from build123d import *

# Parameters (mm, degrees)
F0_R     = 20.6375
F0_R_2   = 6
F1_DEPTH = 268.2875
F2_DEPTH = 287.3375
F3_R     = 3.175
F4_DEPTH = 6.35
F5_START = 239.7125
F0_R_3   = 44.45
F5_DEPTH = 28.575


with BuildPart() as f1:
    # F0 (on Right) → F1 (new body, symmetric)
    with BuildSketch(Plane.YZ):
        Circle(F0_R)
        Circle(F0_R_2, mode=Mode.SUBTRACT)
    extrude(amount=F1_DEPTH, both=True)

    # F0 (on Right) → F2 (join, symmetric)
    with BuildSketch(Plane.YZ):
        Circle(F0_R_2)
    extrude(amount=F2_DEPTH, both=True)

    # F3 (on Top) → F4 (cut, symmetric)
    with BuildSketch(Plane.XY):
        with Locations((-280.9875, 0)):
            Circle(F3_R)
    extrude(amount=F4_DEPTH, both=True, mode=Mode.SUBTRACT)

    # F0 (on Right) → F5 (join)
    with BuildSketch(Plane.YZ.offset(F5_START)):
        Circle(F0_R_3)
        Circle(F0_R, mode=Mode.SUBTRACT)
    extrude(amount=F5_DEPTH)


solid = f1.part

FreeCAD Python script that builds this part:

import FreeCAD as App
import Part
import Sketcher
Q = App.Units.Quantity

doc = App.newDocument("Part")
body = doc.addObject("PartDesign::Body", "Body")

# Sketch on YZ plane
sketch1 = body.newObject("Sketcher::SketchObject", "Sketch")
sketch1.AttachmentSupport = (doc.getObject("YZ_Plane"), [""])
sketch1.MapMode = "FlatFace"
sketch1.addGeometry([
    Part.Circle(App.Vector(0, 0, 0), App.Vector(0, 0, 1), 21),
    Part.Circle(App.Vector(0, 0, 0), App.Vector(0, 0, 1), 6),
], False)
sketch1.addConstraint([
    Sketcher.Constraint("Coincident", 0, 3, -1, 1),
    Sketcher.Constraint("Coincident", 1, 3, -1, 1),
    Sketcher.Constraint("Diameter", 0, Q("1.625 in")),
    Sketcher.Constraint("Diameter", 1, 12.0),
])
pad1 = body.newObject("PartDesign::Pad", "Pad")
pad1.Profile = sketch1
pad1.Length = Q("21.125 in")
pad1.Midplane = True

# Sketch on YZ plane
sketch2 = body.newObject("Sketcher::SketchObject", "Sketch001")
sketch2.AttachmentSupport = (doc.getObject("YZ_Plane"), [""])
sketch2.MapMode = "FlatFace"
sketch2.addGeometry(Part.Circle(App.Vector(0, 0, 0), App.Vector(0, 0, 1), 6), False)
sketch2.addConstraint([
    Sketcher.Constraint("Coincident", 0, 3, -1, 1),
    Sketcher.Constraint("Diameter", 0, 12.0),
])
pad2 = body.newObject("PartDesign::Pad", "Pad001")
pad2.Profile = sketch2
pad2.Length = Q("22.625 in")
pad2.Midplane = True

# Sketch on XY plane
sketch3 = body.newObject("Sketcher::SketchObject", "Sketch002")
sketch3.AttachmentSupport = (doc.getObject("XY_Plane"), [""])
sketch3.MapMode = "FlatFace"
sketch3.addGeometry(Part.Circle(App.Vector(-281, 0, 0), App.Vector(0, 0, 1), 3.2), False)
sketch3.addConstraint([
    Sketcher.Constraint("PointOnObject", 0, 3, -1),
    Sketcher.Constraint("Diameter", 0, Q("0.25 in")),
    Sketcher.Constraint("DistanceX", 0, 3, -1, 1, Q("11.0625 in")),
])
pocket1 = body.newObject("PartDesign::Pocket", "Pocket")
pocket1.Profile = sketch3
pocket1.Length = Q("0.5 in")
pocket1.Midplane = True

# Sketch on YZ plane
sketch4 = body.newObject("Sketcher::SketchObject", "Sketch003")
sketch4.AttachmentSupport = (doc.getObject("YZ_Plane"), [""])
sketch4.MapMode = "FlatFace"
sketch4.AttachmentOffset = App.Placement(App.Vector(0, 0, 9.4375 * 25.4), App.Rotation())
sketch4.addGeometry([
    Part.Circle(App.Vector(0, 0, 0), App.Vector(0, 0, 1), 44),
    Part.Circle(App.Vector(0, 0, 0), App.Vector(0, 0, 1), 21),
], False)
sketch4.addConstraint([
    Sketcher.Constraint("Coincident", 0, 3, -1, 1),
    Sketcher.Constraint("Coincident", 1, 3, -1, 1),
    Sketcher.Constraint("Diameter", 0, Q("3.5 in")),
    Sketcher.Constraint("Diameter", 1, Q("1.625 in")),
])
pad3 = body.newObject("PartDesign::Pad", "Pad002")
pad3.Profile = sketch4
pad3.Length = Q("1.125 in")

doc.recompute()
